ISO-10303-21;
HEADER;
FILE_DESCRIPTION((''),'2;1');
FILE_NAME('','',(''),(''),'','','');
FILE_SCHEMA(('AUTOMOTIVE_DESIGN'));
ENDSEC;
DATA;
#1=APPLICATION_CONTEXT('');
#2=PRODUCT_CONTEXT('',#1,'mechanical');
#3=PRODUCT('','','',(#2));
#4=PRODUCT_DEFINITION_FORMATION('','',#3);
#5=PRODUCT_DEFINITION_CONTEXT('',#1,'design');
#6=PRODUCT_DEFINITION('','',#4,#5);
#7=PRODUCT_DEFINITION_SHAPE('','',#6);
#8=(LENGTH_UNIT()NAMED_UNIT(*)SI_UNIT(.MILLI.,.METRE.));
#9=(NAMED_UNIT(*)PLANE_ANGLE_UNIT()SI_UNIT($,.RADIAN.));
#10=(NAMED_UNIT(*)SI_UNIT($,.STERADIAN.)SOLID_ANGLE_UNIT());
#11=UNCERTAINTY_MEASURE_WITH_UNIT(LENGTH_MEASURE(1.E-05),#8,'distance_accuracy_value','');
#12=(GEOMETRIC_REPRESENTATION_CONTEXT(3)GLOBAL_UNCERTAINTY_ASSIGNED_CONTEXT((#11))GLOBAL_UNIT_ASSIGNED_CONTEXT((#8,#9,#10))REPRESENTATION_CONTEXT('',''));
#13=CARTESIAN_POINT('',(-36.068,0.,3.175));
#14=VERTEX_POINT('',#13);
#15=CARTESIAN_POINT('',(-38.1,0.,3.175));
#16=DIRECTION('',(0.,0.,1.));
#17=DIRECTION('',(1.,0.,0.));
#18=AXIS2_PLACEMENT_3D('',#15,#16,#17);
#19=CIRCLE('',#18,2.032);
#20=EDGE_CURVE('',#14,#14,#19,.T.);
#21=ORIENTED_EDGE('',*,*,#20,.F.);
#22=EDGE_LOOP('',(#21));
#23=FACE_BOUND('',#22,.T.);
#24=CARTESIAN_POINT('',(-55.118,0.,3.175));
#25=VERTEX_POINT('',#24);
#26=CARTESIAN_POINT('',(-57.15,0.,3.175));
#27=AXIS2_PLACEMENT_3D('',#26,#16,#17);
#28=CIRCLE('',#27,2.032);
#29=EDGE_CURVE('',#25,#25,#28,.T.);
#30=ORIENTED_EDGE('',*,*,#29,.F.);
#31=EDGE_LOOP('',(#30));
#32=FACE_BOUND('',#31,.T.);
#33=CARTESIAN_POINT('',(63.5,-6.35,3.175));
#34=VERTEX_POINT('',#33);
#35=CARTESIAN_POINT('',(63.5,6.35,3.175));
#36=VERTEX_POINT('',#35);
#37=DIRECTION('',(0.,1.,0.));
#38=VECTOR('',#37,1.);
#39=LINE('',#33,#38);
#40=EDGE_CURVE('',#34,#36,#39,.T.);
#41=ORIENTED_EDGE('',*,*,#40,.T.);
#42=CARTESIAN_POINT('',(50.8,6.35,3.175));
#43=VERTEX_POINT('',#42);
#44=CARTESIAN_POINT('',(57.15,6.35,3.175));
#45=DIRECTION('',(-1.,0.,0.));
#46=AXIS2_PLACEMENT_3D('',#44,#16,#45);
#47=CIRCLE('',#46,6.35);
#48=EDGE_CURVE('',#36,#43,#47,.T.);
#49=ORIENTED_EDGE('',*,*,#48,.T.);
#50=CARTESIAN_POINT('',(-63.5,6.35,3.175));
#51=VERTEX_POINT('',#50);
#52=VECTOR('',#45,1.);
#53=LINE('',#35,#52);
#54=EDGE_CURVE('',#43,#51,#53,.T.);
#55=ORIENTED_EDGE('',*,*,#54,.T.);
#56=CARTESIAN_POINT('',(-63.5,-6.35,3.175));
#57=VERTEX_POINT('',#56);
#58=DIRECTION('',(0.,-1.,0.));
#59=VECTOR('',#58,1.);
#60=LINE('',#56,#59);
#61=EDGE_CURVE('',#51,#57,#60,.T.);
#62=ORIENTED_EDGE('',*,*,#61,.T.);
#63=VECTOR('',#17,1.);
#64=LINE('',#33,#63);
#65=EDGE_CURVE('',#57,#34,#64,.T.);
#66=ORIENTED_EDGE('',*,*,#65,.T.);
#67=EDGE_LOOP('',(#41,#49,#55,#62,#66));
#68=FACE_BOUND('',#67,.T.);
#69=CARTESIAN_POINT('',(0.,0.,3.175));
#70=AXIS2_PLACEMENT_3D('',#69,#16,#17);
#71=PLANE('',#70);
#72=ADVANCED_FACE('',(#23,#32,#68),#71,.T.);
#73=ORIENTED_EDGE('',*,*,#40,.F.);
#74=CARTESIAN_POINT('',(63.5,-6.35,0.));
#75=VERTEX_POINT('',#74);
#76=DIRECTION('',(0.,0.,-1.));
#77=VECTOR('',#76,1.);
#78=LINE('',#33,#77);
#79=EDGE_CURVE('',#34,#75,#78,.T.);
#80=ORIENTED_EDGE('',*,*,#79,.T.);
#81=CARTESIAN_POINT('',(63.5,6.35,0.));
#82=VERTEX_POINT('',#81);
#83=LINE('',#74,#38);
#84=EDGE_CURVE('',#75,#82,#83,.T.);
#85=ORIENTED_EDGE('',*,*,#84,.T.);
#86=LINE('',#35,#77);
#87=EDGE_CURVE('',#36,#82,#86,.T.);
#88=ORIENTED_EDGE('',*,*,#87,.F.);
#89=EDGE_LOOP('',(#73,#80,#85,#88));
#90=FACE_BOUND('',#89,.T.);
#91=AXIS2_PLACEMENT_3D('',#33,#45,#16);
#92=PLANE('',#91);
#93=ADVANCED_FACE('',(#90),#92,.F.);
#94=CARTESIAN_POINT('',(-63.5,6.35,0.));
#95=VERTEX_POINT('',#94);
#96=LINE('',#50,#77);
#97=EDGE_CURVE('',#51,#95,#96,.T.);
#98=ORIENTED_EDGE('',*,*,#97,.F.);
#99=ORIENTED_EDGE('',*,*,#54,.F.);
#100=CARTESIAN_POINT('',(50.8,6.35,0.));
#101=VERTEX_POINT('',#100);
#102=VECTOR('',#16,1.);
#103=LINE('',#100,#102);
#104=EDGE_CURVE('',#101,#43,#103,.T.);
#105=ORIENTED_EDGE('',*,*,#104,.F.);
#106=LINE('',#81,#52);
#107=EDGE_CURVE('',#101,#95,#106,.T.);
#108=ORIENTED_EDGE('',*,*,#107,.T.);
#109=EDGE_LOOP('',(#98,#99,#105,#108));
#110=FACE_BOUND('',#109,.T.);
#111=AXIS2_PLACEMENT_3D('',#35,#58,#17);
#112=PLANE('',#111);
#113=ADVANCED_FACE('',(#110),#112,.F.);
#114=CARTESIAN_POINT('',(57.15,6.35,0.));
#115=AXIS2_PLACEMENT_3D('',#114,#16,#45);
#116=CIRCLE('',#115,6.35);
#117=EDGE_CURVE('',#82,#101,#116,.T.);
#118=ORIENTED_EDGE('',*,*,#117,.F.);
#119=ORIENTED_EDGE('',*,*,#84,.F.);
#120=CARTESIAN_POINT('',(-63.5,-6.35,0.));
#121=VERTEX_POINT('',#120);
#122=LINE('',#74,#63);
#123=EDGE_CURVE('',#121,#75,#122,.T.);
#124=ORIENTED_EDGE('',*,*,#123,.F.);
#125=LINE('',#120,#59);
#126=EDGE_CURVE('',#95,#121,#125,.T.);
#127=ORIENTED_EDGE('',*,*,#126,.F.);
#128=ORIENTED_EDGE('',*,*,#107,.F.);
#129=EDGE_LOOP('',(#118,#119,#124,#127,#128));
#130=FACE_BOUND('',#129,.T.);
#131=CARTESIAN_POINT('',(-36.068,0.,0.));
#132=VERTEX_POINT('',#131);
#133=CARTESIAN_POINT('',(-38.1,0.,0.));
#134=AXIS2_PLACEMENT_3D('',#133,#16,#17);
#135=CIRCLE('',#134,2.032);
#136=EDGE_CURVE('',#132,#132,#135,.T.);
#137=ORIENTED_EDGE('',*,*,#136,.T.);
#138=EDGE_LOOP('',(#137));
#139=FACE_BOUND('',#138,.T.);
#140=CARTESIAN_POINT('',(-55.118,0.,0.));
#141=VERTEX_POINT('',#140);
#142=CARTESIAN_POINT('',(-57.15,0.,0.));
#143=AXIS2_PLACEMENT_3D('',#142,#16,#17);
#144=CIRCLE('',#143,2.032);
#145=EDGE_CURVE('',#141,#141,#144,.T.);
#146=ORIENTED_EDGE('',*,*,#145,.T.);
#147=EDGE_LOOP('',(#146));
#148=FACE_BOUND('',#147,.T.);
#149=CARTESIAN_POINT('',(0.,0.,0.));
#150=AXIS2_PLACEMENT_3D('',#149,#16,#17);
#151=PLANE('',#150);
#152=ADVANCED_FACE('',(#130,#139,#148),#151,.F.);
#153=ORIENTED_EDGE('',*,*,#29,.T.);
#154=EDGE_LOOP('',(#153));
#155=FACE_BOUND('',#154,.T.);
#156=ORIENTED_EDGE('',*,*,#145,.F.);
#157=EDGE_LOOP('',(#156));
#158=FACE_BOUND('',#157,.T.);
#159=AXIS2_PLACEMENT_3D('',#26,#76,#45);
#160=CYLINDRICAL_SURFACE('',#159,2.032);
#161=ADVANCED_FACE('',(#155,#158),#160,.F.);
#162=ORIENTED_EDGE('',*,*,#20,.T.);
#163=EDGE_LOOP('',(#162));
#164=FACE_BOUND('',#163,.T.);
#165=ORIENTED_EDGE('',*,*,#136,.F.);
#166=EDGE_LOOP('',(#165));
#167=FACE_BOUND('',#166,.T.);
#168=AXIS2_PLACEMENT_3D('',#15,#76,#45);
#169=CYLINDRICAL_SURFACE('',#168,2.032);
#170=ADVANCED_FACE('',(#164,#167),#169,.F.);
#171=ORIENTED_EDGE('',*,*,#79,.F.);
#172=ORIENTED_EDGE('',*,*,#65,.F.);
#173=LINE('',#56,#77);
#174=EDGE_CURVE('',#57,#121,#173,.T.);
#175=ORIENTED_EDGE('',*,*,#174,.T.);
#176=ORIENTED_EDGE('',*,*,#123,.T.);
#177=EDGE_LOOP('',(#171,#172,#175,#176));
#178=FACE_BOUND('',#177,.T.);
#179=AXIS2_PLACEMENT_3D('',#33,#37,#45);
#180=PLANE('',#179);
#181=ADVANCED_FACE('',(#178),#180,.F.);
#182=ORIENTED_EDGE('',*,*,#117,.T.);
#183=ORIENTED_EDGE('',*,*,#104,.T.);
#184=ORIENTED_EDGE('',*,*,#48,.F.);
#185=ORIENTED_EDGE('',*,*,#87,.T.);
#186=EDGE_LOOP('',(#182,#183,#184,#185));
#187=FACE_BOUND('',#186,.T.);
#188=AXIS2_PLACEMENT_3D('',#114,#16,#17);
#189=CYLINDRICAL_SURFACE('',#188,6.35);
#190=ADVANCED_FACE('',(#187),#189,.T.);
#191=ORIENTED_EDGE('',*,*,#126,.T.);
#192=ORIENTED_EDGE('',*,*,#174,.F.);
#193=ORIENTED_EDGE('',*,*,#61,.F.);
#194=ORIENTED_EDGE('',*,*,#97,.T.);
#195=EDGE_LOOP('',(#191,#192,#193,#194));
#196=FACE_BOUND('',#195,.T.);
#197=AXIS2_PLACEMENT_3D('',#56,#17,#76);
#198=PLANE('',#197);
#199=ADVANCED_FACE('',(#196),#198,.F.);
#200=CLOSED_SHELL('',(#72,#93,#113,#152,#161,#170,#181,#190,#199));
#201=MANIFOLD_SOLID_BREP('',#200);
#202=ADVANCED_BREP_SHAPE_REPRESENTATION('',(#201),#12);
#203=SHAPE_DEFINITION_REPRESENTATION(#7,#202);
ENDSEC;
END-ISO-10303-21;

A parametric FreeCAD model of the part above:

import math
import FreeCAD as App
import Part
import Sketcher

V = App.Vector
Q = App.Units.Quantity

doc = App.newDocument("Part")
body = doc.addObject("PartDesign::Body", "Body")

sketch1 = body.newObject("Sketcher::SketchObject", "Sketch")
sketch1.AttachmentSupport = (doc.getObject("XY_Plane"), [""])
sketch1.MapMode = "FlatFace"
sketch1.addGeometry(Part.LineSegment(V(-63.5, 6.35, 0), V(-63.5, -6.35, 0)), False)
sketch1.addGeometry(Part.LineSegment(V(-63.5, -6.35, 0), V(63.5, -6.35, 0)), False)
sketch1.addGeometry(Part.LineSegment(V(63.5, -6.35, 0), V(63.5, 6.35, 0)), False)
sketch1.addGeometry(Part.LineSegment(V(63.5, 6.35, 0), V(-63.5, 6.35, 0)), False)
sketch1.addGeometry(Part.Circle(V(-57.15, 0, 0), V(0, 0, 1), 2.032), False)
sketch1.addGeometry(Part.Circle(V(-38.1, 0, 0), V(0, 0, 1), 2.032), False)
sketch1.addConstraint(Sketcher.Constraint("Coincident", 0, 2, 1, 1))
sketch1.addConstraint(Sketcher.Constraint("Coincident", 1, 2, 2, 1))
sketch1.addConstraint(Sketcher.Constraint("Coincident", 2, 2, 3, 1))
sketch1.addConstraint(Sketcher.Constraint("Coincident", 3, 2, 0, 1))
sketch1.addConstraint(Sketcher.Constraint("Vertical", 0))
sketch1.addConstraint(Sketcher.Constraint("Horizontal", 1))
sketch1.addConstraint(Sketcher.Constraint("Vertical", 2))
sketch1.addConstraint(Sketcher.Constraint("Horizontal", 3))
sketch1.addConstraint(Sketcher.Constraint("Equal", 4, 5))
sketch1.addConstraint(Sketcher.Constraint("Symmetric", 0, 2, 2, 2, -1, 1))
sketch1.addConstraint(Sketcher.Constraint("PointOnObject", 4, 3, -1))
sketch1.addConstraint(Sketcher.Constraint("PointOnObject", 5, 3, -1))
sketch1.addConstraint(Sketcher.Constraint("Diameter", 4, Q("0.16 in")))
sketch1.addConstraint(Sketcher.Constraint("DistanceX", 1, 1, 1, 2, Q("5 in")))
sketch1.addConstraint(Sketcher.Constraint("DistanceY", 0, 2, 0, 1, Q("0.5 in")))
sketch1.addConstraint(Sketcher.Constraint("DistanceX", 0, 2, 5, 3, Q("1 in")))
sketch1.addConstraint(Sketcher.Constraint("DistanceX", 4, 3, -1, 1, Q("2.25 in")))
pad1 = body.newObject("PartDesign::Pad", "Pad")
pad1.Profile = sketch1
pad1.Length = Q("0.125 in")

sketch2 = body.newObject("Sketcher::SketchObject", "Sketch001")
sketch2.AttachmentSupport = (doc.getObject("XY_Plane"), [""])
sketch2.MapMode = "FlatFace"
sketch2.AttachmentOffset = App.Placement(V(0, 0, 0.125 * 25.4), App.Rotation())
sketch2.addGeometry(Part.LineSegment(V(50.8, 6.35, 0), V(63.5, 6.35, 0)), False)
sketch2.addGeometry(Part.ArcOfCircle(Part.Circle(V(57.15, 6.35, 0), V(0, 0, 1), 6.35), math.radians(0), math.radians(180)), False)
sketch2.addConstraint(Sketcher.Constraint("Coincident", 0, 1, 1, 2))
sketch2.addConstraint(Sketcher.Constraint("Coincident", 1, 1, 0, 2))
sketch2.addConstraint(Sketcher.Constraint("Horizontal", 0))
sketch2.addConstraint(Sketcher.Constraint("Horizontal", 1, 3, 0, 1))
sketch2.addConstraint(Sketcher.Constraint("Radius", 1, Q("0.25 in")))
sketch2.addConstraint(Sketcher.Constraint("DistanceX", -1, 1, 0, 1, Q("2 in")))
sketch2.addConstraint(Sketcher.Constraint("DistanceY", -1, 1, 1, 3, Q("0.25 in")))
pad2 = body.newObject("PartDesign::Pad", "Pad001")
pad2.Profile = sketch2
pad2.Length = Q("0.125 in")
pad2.Reversed = True

doc.recompute()
